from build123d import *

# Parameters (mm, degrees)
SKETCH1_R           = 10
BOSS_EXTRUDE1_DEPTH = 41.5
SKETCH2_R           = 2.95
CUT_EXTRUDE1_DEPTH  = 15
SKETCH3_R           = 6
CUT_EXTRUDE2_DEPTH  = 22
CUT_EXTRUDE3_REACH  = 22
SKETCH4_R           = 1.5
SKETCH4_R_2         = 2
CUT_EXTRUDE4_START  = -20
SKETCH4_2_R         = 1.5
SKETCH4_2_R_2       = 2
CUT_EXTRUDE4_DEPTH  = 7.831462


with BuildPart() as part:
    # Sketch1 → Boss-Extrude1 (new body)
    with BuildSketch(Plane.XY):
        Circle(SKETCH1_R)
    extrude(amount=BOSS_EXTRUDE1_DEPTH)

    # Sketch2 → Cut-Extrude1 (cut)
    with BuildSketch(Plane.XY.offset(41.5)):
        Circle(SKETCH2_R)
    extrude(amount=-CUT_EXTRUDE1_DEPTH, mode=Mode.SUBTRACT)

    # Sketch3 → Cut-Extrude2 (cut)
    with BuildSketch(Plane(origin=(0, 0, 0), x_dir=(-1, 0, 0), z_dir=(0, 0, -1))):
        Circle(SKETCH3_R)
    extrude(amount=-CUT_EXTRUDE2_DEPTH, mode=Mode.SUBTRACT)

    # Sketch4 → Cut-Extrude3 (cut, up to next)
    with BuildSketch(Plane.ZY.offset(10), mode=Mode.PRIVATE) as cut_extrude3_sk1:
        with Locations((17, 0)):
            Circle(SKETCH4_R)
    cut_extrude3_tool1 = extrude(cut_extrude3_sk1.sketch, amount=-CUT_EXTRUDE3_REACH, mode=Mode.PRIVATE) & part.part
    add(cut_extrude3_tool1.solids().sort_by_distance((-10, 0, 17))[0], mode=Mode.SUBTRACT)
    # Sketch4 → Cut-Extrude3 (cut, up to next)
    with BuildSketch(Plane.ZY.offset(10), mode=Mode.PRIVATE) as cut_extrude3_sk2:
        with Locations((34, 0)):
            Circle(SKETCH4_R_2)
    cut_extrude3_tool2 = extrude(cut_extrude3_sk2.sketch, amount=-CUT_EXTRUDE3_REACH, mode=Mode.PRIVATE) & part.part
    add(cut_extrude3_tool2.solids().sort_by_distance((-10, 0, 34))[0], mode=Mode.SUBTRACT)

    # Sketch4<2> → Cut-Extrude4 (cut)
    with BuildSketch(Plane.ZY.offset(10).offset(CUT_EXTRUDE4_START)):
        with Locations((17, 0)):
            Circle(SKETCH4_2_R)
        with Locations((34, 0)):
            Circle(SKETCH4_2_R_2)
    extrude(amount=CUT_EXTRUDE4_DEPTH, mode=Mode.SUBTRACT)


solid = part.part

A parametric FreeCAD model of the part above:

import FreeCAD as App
import Part
import Sketcher

doc = App.newDocument("Part")
params = doc.addObject("Spreadsheet::Sheet", "Params")
for row, (alias, value) in enumerate([
    ("sketch1_diameter", "20 mm"),
    ("pad1_length", "41.5 mm"),
    ("sketch2_diameter", "5.9 mm"),
    ("pocket1_length", "15 mm"),
    ("sketch3_diameter", "12 mm"),
    ("pocket2_length", "22 mm"),
    ("sketch4_diameter", "3 mm"),
    ("sketch5_diameter", "4 mm"),
    ("sketch6_diameter", "3 mm"),
    ("sketch6_diameter2", "4 mm"),
    ("pocket5_length", "7.831462 mm"),
], start=1):
    params.set(f"A{row}", alias)
    params.set(f"B{row}", "=" + value)
    params.setAlias(f"B{row}", alias)

body = doc.addObject("PartDesign::Body", "Body")

sketch1 = body.newObject("Sketcher::SketchObject", "Sketch")
sketch1.AttachmentSupport = (doc.getObject("XY_Plane"), [""])
sketch1.MapMode = "FlatFace"
sketch1.addGeometry(Part.Circle(App.Vector(0, 0, 0), App.Vector(0, 0, 1), 10), False)
sketch1.addConstraint(Sketcher.Constraint("Coincident", 0, 3, -1, 1))
sketch1.addConstraint(Sketcher.Constraint("Diameter", 0, 20.0))
sketch1.setExpression("Constraints[1]", "Params.sketch1_diameter")
pad1 = body.newObject("PartDesign::Pad", "Pad")
pad1.Profile = sketch1
pad1.setExpression("Length", "Params.pad1_length")

sketch2 = body.newObject("Sketcher::SketchObject", "Sketch001")
sketch2.AttachmentSupport = (doc.getObject("XY_Plane"), [""])
sketch2.MapMode = "FlatFace"
sketch2.AttachmentOffset = App.Placement(App.Vector(0, 0, 41.5), App.Rotation())
sketch2.addGeometry(Part.Circle(App.Vector(0, 0, 0), App.Vector(0, 0, 1), 2.95), False)
sketch2.addConstraint(Sketcher.Constraint("Coincident", 0, 3, -1, 1))
sketch2.addConstraint(Sketcher.Constraint("Diameter", 0, 5.9))
sketch2.setExpression("Constraints[1]", "Params.sketch2_diameter")
pocket1 = body.newObject("PartDesign::Pocket", "Pocket")
pocket1.Profile = sketch2
pocket1.setExpression("Length", "Params.pocket1_length")

sketch3 = body.newObject("Sketcher::SketchObject", "Sketch002")
sketch3.AttachmentSupport = (doc.getObject("XY_Plane"), [""])
sketch3.MapMode = "FlatFace"
sketch3.addGeometry(Part.Circle(App.Vector(0, 0, 0), App.Vector(0, 0, 1), 6), False)
sketch3.addConstraint(Sketcher.Constraint("Coincident", 0, 3, -1, 1))
sketch3.addConstraint(Sketcher.Constraint("Diameter", 0, 12.0))
sketch3.setExpression("Constraints[1]", "Params.sketch3_diameter")
pocket2 = body.newObject("PartDesign::Pocket", "Pocket001")
pocket2.Profile = sketch3
pocket2.setExpression("Length", "Params.pocket2_length")
pocket2.Reversed = True

sketch4 = body.newObject("Sketcher::SketchObject", "Sketch003")
sketch4.AttachmentSupport = (doc.getObject("YZ_Plane"), [""])
sketch4.MapMode = "FlatFace"
sketch4.AttachmentOffset = App.Placement(App.Vector(0, 0, -10), App.Rotation())
sketch4.addGeometry(Part.Circle(App.Vector(0, 17, 0), App.Vector(0, 0, 1), 1.5), False)
sketch4.addConstraint(Sketcher.Constraint("PointOnObject", 0, 3, -2))
sketch4.addConstraint(Sketcher.Constraint("Diameter", 0, 3.0))
sketch4.addConstraint(Sketcher.Constraint("DistanceY", -1, 1, 0, 3, 17.0))
sketch4.setExpression("Constraints[1]", "Params.sketch4_diameter")
pocket3 = body.newObject("PartDesign::Pocket", "Pocket002")
pocket3.Profile = sketch4
pocket3.Type = "UpToFirst"
pocket3.Reversed = True

sketch5 = body.newObject("Sketcher::SketchObject", "Sketch004")
sketch5.AttachmentSupport = (doc.getObject("YZ_Plane"), [""])
sketch5.MapMode = "FlatFace"
sketch5.AttachmentOffset = App.Placement(App.Vector(0, 0, -10), App.Rotation())
sketch5.addGeometry(Part.Circle(App.Vector(0, 34, 0), App.Vector(0, 0, 1), 2), False)
sketch5.addConstraint(Sketcher.Constraint("PointOnObject", 0, 3, -2))
sketch5.addConstraint(Sketcher.Constraint("Diameter", 0, 4.0))
sketch5.addConstraint(Sketcher.Constraint("DistanceY", -1, 1, 0, 3, 34.0))
sketch5.setExpression("Constraints[1]", "Params.sketch5_diameter")
pocket4 = body.newObject("PartDesign::Pocket", "Pocket003")
pocket4.Profile = sketch5
pocket4.Type = "UpToFirst"
pocket4.Reversed = True

sketch6 = body.newObject("Sketcher::SketchObject", "Sketch005")
sketch6.AttachmentSupport = (doc.getObject("YZ_Plane"), [""])
sketch6.MapMode = "FlatFace"
sketch6.AttachmentOffset = App.Placement(App.Vector(0, 0, 10), App.Rotation())
sketch6.addGeometry(Part.Circle(App.Vector(0, 17, 0), App.Vector(0, 0, 1), 1.5), False)
sketch6.addGeometry(Part.Circle(App.Vector(0, 34, 0), App.Vector(0, 0, 1), 2), False)
sketch6.addConstraint(Sketcher.Constraint("PointOnObject", 0, 3, -2))
sketch6.addConstraint(Sketcher.Constraint("PointOnObject", 1, 3, -2))
sketch6.addConstraint(Sketcher.Constraint("Diameter", 0, 3.0))
sketch6.addConstraint(Sketcher.Constraint("Diameter", 1, 4.0))
sketch6.addConstraint(Sketcher.Constraint("DistanceY", -1, 1, 0, 3, 17.0))
sketch6.addConstraint(Sketcher.Constraint("DistanceY", -1, 1, 1, 3, 34.0))
sketch6.setExpression("Constraints[2]", "Params.sketch6_diameter")
sketch6.setExpression("Constraints[3]", "Params.sketch6_diameter2")
pocket5 = body.newObject("PartDesign::Pocket", "Pocket004")
pocket5.Profile = sketch6
pocket5.setExpression("Length", "Params.pocket5_length")

doc.recompute()
